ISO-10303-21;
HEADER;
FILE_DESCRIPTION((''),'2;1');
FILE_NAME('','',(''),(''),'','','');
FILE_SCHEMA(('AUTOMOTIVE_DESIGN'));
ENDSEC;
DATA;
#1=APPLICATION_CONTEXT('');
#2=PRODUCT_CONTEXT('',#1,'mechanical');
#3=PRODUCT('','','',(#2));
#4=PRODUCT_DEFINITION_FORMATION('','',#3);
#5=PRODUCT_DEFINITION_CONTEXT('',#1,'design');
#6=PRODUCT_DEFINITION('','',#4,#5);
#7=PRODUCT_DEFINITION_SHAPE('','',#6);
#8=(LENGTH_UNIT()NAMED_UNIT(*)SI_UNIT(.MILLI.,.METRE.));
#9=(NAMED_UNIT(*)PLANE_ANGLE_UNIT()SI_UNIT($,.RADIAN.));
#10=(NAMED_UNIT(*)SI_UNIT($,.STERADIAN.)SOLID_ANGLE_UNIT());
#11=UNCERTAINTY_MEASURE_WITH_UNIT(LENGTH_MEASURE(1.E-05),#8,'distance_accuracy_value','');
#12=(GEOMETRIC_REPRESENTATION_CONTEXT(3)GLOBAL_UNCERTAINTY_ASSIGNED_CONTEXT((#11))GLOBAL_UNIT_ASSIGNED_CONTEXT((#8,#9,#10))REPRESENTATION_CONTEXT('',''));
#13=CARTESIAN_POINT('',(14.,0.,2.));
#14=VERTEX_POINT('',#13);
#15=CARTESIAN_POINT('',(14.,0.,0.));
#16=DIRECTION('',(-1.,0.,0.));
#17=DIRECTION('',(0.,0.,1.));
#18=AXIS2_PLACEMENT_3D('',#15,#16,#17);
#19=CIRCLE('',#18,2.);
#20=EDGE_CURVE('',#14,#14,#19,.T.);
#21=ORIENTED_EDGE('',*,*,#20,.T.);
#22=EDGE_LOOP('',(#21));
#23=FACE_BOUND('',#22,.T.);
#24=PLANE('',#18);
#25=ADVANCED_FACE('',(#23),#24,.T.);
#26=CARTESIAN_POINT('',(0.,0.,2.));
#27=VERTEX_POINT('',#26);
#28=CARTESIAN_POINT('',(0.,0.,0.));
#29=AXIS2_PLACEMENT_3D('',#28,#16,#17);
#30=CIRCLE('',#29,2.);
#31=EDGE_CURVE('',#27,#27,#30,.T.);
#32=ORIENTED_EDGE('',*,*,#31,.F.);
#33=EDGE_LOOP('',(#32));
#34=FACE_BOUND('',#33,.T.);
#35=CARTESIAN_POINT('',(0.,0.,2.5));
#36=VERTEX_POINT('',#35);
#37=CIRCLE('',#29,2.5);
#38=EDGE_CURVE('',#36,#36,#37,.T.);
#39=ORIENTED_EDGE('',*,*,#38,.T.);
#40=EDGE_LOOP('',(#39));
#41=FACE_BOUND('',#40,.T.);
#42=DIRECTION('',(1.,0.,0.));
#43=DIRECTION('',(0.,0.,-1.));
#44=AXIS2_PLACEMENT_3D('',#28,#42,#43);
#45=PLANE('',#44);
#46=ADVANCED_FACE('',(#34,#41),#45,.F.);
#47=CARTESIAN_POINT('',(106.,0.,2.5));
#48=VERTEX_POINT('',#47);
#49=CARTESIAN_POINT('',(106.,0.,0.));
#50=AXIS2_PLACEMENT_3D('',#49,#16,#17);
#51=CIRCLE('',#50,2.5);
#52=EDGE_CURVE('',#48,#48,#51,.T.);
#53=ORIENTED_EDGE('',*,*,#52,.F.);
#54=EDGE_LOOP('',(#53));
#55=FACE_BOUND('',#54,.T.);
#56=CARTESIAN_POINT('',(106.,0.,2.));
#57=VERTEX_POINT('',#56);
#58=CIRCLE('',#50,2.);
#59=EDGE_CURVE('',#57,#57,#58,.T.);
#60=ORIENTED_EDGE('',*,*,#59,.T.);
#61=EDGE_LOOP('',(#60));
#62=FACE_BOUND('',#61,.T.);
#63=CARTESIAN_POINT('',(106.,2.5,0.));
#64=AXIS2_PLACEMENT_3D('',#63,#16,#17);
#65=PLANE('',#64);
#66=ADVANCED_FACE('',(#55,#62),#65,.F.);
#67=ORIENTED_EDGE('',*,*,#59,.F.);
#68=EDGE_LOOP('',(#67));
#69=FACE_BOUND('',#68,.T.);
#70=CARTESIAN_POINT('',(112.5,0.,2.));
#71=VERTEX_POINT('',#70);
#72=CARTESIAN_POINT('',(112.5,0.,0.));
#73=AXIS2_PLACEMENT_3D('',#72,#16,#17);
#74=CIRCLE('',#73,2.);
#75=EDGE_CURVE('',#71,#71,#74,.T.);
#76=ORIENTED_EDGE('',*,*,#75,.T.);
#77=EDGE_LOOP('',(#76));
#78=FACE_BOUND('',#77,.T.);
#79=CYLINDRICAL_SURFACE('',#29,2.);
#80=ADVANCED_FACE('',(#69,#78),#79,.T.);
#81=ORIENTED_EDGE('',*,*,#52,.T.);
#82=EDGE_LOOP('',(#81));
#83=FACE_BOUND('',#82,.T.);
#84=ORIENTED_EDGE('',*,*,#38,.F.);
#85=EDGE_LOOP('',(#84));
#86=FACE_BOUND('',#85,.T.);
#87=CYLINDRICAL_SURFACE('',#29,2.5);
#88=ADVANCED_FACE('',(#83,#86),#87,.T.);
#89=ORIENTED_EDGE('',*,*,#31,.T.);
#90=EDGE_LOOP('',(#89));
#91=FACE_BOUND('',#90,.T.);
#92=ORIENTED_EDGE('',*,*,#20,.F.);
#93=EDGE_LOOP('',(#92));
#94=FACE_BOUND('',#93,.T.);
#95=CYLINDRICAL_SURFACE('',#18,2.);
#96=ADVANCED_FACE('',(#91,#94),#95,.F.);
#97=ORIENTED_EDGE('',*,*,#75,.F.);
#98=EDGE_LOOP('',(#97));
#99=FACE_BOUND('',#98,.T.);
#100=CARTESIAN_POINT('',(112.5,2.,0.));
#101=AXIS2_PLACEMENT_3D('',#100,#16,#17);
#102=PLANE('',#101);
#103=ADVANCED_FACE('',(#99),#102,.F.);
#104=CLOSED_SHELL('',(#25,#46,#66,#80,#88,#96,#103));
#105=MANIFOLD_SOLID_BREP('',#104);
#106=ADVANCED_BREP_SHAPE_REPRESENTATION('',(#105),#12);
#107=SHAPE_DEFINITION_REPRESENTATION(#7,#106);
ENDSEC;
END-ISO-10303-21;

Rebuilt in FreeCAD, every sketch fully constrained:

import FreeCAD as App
import Part
import Sketcher
from FreeCAD import Vector
Q = App.Units.Quantity

doc = App.newDocument("Part")
body = doc.addObject("PartDesign::Body", "Body")

# Sketch on XY plane
sketch1 = doc.addObject("Sketcher::SketchObject", "Sketch")
body.addObject(sketch1)
sketch1.AttachmentSupport = (doc.XY_Plane, [""])
sketch1.MapMode = "FlatFace"
sketch1.addGeometry([
    Part.LineSegment(Vector(0, 2.5, 0), Vector(0, 0, 0)),  # 0
    Part.LineSegment(Vector(0, 0, 0), Vector(112.5, 0, 0)),  # 1
    Part.LineSegment(Vector(112.5, 0, 0), Vector(112.5, 2, 0)),  # 2
    Part.LineSegment(Vector(112.5, 2, 0), Vector(106, 2, 0)),  # 3
    Part.LineSegment(Vector(106, 2, 0), Vector(106, 2.5, 0)),  # 4
    Part.LineSegment(Vector(106, 2.5, 0), Vector(0, 2.5, 0)),  # 5
], False)
sketch1.addConstraint([
    Sketcher.Constraint("Coincident", 0, 2, 1, 1),
    Sketcher.Constraint("Coincident", 1, 2, 2, 1),
    Sketcher.Constraint("Coincident", 2, 2, 3, 1),
    Sketcher.Constraint("Coincident", 3, 2, 4, 1),
    Sketcher.Constraint("Coincident", 4, 2, 5, 1),
    Sketcher.Constraint("Coincident", 5, 2, 0, 1),
    Sketcher.Constraint("Vertical", 0),
    Sketcher.Constraint("Horizontal", 1),
    Sketcher.Constraint("Vertical", 2),
    Sketcher.Constraint("Horizontal", 3),
    Sketcher.Constraint("Vertical", 4),
    Sketcher.Constraint("Horizontal", 5),
    Sketcher.Constraint("Coincident", 0, 2, -1, 1),
    Sketcher.Constraint("DistanceX", 5, 2, 5, 1, Q("106 mm")),
    Sketcher.Constraint("DistanceY", 2, 1, 2, 2, Q("2 mm")),
    Sketcher.Constraint("DistanceX", 1, 1, 1, 2, Q("112.5 mm")),
    Sketcher.Constraint("DistanceY", 0, 2, 0, 1, Q("2.5 mm")),
])
revolution = doc.addObject("PartDesign::Revolution", "Revolution")
body.addObject(revolution)
revolution.Profile = sketch1
revolution.ReferenceAxis = (sketch1, ["H_Axis"])
revolution.Angle = 360

# Sketch on YZ plane
sketch2 = doc.addObject("Sketcher::SketchObject", "Sketch001")
body.addObject(sketch2)
sketch2.AttachmentSupport = (doc.YZ_Plane, [""])
sketch2.MapMode = "FlatFace"
sketch2.AttachmentOffset = App.Placement(Vector(0, 0, 14), App.Rotation())
sketch2.addGeometry(Part.Circle(Vector(0, 0, 0), Vector(0, 0, 1), 2), False)
sketch2.addConstraint([
    Sketcher.Constraint("Coincident", 0, 3, -1, 1),
    Sketcher.Constraint("Diameter", 0, Q("4 mm")),
])
pocket1 = doc.addObject("PartDesign::Pocket", "Pocket")
body.addObject(pocket1)
pocket1.Profile = sketch2
pocket1.Length = 14

doc.recompute()
